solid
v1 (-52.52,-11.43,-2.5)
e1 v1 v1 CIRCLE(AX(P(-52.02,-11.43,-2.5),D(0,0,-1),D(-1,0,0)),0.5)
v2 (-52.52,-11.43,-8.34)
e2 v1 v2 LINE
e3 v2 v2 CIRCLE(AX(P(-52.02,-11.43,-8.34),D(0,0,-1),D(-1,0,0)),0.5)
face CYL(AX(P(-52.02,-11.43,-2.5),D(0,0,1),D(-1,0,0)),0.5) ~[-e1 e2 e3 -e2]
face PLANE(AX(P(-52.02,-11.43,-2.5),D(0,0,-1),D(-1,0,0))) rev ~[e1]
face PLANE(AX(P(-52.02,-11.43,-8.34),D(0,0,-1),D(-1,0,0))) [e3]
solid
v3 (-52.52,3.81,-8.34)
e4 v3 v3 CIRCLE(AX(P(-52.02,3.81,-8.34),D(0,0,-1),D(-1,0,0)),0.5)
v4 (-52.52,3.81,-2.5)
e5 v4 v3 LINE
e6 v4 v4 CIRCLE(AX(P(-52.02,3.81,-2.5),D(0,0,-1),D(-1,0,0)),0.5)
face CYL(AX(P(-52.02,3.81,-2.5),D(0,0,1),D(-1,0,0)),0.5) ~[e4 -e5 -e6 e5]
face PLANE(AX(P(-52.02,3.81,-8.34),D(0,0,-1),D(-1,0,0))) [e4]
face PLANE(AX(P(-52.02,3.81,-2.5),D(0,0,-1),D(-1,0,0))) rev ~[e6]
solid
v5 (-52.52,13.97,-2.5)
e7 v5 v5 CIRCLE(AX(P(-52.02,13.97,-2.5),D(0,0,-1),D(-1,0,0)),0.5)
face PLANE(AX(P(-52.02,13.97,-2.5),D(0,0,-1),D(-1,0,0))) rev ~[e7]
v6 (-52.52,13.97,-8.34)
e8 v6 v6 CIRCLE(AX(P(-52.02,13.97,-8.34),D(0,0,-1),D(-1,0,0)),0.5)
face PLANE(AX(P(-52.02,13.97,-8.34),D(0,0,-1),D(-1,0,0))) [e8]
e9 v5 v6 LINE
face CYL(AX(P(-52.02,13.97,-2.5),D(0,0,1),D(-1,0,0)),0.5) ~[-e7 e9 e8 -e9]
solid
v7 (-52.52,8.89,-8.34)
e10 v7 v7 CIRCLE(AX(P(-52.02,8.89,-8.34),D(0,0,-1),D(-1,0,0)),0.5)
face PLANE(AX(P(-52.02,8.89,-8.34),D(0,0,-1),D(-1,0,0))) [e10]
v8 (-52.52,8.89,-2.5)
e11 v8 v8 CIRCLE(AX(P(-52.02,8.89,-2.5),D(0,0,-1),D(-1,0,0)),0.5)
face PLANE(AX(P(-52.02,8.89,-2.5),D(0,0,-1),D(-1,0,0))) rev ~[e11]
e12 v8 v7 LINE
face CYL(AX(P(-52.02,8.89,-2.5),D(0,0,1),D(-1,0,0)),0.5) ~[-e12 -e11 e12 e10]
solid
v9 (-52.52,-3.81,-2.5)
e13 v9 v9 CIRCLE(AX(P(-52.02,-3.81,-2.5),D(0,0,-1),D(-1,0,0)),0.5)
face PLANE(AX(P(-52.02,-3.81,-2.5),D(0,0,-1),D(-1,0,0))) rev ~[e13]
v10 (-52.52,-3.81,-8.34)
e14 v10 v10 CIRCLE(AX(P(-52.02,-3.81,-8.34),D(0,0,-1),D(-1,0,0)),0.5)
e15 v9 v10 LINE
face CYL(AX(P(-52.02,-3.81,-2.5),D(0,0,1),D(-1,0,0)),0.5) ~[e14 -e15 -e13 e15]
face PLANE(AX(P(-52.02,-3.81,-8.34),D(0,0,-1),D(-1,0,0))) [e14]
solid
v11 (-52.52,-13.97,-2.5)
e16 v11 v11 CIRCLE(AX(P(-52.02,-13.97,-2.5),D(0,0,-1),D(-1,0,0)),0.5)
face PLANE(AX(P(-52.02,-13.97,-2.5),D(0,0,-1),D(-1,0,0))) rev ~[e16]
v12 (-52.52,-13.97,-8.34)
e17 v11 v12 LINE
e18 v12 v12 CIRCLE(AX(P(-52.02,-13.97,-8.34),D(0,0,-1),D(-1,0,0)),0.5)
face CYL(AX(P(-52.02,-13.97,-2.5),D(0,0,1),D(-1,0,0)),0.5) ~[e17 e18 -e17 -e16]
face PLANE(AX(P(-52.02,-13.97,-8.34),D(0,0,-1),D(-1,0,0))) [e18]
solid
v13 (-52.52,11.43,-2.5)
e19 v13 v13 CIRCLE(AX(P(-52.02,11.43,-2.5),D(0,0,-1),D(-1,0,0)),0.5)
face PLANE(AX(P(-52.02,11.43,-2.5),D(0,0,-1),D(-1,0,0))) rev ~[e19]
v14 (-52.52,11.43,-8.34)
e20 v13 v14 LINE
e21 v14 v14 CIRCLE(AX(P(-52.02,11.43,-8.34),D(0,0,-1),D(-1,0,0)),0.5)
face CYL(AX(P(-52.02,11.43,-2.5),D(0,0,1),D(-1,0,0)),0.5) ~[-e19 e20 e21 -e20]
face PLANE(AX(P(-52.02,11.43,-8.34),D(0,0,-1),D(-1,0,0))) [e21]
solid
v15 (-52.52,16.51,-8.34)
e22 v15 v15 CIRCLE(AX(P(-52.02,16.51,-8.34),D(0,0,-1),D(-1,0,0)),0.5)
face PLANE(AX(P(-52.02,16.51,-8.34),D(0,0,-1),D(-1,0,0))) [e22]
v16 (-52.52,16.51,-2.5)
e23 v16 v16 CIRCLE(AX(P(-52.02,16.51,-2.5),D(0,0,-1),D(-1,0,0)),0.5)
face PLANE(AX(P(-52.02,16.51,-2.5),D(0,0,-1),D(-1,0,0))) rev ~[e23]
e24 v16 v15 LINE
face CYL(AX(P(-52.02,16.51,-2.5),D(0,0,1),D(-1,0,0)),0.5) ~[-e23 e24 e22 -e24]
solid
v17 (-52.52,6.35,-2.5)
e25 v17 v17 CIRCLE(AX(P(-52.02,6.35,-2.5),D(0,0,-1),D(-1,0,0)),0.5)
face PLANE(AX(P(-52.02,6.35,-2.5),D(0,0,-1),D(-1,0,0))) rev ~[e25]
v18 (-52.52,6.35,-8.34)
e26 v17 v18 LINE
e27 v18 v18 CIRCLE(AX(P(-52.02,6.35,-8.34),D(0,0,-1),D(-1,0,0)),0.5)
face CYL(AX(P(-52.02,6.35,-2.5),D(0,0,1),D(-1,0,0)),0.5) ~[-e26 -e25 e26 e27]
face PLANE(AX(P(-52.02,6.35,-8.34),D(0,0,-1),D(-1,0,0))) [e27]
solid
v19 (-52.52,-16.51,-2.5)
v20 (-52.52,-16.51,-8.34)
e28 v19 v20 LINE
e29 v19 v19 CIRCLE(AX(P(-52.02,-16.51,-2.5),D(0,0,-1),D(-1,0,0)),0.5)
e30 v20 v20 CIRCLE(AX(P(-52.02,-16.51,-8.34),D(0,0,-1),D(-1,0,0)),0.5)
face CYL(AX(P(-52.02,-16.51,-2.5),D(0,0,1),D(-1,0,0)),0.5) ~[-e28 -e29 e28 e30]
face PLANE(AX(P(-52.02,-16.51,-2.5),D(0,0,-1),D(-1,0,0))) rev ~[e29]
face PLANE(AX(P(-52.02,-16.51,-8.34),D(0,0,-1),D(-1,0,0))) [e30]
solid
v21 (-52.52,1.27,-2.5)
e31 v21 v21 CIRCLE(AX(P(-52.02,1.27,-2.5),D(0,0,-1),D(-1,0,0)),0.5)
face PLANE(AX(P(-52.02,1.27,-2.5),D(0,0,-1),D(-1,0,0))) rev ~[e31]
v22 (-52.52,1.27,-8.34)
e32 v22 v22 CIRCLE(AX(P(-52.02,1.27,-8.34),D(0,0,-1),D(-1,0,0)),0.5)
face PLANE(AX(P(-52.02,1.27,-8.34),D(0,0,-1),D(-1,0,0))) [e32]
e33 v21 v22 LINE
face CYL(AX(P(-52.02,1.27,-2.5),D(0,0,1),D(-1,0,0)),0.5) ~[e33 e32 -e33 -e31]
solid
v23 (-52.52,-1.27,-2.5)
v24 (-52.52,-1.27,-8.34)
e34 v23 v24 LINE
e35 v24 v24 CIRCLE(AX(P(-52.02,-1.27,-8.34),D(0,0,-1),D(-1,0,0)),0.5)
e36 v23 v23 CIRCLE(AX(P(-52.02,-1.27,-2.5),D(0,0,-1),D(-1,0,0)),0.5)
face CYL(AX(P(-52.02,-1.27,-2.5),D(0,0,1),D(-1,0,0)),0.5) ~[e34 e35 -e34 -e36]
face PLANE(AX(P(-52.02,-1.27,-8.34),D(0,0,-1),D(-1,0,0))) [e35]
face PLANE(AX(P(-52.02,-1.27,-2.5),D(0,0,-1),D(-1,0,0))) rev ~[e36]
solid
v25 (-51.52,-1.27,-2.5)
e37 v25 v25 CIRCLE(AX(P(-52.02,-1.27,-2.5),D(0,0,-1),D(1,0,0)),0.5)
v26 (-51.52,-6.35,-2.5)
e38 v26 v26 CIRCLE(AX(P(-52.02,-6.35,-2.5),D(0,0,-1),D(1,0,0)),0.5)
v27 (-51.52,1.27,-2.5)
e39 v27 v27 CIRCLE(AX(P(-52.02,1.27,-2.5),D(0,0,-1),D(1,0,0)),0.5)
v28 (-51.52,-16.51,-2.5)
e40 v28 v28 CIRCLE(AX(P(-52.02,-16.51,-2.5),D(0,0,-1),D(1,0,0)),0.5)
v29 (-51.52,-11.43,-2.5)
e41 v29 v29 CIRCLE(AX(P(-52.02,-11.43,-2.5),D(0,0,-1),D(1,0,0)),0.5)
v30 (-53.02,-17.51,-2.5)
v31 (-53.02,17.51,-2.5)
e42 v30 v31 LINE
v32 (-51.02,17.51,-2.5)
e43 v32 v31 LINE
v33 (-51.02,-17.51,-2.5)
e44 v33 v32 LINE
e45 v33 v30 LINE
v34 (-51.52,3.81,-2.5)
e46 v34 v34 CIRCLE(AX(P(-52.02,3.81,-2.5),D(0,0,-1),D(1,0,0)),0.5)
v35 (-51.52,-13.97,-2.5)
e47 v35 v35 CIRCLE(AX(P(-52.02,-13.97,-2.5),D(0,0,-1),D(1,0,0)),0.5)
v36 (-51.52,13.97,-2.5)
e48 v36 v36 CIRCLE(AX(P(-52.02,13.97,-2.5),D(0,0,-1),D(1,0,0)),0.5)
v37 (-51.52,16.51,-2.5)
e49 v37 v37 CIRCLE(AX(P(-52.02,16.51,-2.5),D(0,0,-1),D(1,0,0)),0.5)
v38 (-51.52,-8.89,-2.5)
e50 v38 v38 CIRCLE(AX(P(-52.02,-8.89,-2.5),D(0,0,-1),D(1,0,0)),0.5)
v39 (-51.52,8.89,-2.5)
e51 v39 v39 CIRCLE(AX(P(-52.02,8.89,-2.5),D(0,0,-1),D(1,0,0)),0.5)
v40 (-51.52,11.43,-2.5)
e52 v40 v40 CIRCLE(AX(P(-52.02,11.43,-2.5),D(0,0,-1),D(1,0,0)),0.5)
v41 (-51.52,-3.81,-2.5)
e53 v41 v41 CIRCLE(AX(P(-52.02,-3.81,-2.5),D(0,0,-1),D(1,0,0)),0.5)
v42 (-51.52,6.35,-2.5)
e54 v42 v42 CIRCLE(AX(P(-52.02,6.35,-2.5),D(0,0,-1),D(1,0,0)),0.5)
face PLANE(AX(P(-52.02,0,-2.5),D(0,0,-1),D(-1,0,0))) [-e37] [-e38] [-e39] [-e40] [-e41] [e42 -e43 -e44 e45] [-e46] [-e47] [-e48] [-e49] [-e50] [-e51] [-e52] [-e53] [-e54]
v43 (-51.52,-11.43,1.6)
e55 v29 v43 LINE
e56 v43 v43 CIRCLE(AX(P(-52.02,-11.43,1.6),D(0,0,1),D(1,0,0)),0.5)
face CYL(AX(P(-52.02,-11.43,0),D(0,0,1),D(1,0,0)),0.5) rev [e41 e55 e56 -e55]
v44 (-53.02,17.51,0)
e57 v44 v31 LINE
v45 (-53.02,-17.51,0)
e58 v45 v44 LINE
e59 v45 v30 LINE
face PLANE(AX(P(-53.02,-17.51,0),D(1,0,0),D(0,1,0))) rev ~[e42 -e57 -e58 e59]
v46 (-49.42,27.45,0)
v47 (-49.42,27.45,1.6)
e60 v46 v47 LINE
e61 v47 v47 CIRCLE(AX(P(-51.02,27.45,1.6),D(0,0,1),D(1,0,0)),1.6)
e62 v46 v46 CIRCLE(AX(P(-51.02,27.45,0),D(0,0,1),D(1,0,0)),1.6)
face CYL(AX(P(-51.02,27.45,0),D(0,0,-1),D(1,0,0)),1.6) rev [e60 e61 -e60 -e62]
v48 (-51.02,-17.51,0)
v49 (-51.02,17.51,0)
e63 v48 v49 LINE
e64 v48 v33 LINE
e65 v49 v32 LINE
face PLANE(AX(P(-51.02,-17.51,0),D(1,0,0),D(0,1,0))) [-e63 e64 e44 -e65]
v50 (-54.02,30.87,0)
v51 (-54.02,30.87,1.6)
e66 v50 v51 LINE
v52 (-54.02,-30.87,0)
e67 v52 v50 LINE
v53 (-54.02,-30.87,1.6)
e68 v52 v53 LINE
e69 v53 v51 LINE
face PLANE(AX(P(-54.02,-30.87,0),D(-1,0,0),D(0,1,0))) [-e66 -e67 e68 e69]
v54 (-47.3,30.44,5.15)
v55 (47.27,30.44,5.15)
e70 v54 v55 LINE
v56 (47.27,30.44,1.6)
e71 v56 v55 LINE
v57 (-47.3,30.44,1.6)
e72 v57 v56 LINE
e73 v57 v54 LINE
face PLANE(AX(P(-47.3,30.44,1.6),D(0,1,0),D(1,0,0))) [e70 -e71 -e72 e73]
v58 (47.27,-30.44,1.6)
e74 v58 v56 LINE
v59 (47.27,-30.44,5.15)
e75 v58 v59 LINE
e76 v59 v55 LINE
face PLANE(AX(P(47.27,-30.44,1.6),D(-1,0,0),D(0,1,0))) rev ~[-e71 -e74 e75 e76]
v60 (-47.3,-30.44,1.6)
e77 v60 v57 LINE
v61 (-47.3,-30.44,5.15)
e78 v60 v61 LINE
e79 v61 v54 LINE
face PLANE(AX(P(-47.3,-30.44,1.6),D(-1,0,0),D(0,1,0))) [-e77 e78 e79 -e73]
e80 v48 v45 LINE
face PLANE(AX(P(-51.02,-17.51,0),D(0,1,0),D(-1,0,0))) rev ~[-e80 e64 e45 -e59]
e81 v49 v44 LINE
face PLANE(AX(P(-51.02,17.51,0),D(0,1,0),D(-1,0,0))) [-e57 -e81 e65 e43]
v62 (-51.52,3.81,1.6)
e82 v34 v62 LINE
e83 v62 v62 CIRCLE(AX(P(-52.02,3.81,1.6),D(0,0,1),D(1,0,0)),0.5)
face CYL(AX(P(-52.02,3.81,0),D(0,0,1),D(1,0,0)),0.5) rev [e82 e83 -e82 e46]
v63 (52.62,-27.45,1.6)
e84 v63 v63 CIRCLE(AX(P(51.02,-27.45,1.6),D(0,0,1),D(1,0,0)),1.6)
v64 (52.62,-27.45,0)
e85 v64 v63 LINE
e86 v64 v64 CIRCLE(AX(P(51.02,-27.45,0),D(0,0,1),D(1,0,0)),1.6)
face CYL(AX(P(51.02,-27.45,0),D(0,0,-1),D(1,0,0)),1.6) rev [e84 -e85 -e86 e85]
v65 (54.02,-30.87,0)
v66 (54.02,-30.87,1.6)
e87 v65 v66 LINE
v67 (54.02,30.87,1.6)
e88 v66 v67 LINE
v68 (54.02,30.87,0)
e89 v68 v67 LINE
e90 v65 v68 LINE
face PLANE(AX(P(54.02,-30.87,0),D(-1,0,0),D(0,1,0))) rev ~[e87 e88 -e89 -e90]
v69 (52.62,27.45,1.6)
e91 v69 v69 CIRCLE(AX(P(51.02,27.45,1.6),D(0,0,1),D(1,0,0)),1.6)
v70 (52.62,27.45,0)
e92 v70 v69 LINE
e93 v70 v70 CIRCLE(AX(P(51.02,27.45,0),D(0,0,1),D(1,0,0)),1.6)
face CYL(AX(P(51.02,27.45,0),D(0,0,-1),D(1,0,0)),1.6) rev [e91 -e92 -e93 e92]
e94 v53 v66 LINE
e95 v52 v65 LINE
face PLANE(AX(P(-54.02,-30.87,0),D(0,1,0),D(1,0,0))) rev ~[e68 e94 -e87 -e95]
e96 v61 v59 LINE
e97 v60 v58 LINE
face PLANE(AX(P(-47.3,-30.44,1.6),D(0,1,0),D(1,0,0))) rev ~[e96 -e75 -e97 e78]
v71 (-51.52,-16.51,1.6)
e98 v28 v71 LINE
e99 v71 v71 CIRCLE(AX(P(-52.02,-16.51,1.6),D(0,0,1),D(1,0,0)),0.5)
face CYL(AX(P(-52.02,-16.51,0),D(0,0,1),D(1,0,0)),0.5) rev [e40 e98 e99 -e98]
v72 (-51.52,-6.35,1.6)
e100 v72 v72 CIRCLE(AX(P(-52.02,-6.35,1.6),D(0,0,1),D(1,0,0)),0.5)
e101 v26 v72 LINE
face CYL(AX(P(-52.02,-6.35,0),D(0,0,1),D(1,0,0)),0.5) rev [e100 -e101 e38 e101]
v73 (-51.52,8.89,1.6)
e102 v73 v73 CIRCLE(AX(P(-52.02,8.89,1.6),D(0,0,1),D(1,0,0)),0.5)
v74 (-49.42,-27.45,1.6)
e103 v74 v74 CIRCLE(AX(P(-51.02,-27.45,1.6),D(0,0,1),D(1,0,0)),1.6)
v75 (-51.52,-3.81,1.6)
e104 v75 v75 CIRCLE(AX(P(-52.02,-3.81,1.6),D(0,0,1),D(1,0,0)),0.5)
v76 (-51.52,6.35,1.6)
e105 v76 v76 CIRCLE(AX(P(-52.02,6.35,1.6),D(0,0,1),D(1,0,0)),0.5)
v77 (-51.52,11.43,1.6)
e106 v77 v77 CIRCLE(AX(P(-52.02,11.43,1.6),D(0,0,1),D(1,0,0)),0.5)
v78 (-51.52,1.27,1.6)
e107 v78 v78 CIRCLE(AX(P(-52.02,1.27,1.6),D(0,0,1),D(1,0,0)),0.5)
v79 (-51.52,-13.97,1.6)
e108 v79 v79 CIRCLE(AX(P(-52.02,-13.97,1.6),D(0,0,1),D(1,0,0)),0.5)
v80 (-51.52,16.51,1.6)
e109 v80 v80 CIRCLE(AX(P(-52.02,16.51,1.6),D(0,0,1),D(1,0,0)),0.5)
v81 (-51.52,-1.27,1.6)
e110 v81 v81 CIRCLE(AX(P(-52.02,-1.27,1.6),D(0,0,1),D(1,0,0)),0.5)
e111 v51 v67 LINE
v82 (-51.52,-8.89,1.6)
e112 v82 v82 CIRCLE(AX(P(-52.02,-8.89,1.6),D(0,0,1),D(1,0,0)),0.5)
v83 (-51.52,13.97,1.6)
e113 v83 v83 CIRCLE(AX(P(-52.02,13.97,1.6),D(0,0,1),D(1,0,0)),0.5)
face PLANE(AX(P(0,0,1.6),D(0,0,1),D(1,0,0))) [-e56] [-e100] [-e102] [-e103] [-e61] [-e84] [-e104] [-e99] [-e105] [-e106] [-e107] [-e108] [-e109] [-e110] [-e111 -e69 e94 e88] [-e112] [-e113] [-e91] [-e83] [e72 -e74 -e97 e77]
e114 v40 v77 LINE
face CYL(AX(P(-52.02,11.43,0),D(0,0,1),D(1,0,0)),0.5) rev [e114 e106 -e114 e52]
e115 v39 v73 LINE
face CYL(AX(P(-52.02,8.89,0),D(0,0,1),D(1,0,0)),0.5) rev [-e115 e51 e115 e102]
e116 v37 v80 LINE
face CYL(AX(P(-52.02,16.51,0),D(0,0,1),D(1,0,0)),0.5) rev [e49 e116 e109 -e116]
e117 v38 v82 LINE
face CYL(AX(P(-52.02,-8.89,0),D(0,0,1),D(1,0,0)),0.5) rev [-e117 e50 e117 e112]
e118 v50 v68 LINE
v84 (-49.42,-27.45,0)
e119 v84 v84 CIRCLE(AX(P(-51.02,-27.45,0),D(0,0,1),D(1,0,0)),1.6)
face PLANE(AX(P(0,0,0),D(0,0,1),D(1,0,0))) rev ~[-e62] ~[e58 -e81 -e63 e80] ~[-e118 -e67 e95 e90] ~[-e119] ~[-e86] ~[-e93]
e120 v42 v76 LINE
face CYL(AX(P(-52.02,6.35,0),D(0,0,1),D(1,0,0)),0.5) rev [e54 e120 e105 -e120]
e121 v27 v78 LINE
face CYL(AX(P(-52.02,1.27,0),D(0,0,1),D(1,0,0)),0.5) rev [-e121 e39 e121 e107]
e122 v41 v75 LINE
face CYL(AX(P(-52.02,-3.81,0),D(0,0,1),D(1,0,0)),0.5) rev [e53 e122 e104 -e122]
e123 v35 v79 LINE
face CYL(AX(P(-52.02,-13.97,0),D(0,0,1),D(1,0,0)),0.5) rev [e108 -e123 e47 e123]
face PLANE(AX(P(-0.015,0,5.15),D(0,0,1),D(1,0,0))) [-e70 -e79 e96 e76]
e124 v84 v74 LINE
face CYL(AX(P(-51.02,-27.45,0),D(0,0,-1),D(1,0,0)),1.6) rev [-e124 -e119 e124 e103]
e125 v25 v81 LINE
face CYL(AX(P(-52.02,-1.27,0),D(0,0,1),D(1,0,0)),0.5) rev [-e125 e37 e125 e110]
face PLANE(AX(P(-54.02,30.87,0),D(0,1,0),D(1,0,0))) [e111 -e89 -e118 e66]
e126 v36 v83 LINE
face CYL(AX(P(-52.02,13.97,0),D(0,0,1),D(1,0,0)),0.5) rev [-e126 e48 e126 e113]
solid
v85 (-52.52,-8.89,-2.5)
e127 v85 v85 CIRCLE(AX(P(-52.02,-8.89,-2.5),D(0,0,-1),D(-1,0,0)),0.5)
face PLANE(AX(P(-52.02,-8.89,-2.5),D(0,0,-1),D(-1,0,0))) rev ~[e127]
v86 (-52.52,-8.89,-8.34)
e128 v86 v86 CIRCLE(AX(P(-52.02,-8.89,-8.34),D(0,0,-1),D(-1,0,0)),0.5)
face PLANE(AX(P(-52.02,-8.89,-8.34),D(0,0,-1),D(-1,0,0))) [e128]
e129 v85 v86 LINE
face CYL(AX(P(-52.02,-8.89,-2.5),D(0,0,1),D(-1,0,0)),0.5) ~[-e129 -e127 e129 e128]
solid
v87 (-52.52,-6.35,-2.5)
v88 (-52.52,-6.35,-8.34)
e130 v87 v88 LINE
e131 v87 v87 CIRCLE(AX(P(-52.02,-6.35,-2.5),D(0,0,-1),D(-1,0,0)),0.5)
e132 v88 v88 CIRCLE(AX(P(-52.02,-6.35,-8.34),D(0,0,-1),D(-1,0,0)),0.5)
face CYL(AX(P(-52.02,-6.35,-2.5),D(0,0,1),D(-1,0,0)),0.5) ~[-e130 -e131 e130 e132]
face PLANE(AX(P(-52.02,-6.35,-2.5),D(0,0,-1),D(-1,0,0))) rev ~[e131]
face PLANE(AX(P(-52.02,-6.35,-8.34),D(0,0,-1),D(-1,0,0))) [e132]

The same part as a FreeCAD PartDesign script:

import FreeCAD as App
import Part
import Sketcher
from FreeCAD import Vector
Q = App.Units.Quantity

doc = App.newDocument("Part")
body = doc.addObject("PartDesign::Body", "Body")

sketch1 = doc.addObject("Sketcher::SketchObject", "Sketch")
body.addObject(sketch1)
sketch1.AttachmentSupport = (doc.XY_Plane, [""])
sketch1.MapMode = "FlatFace"
sketch1.addGeometry([
    Part.LineSegment(Vector(-54.02, 30.87, 0), Vector(-54.02, -30.87, 0)),
    Part.LineSegment(Vector(-54.02, -30.87, 0), Vector(54.02, -30.87, 0)),
    Part.LineSegment(Vector(54.02, -30.87, 0), Vector(54.02, 30.87, 0)),
    Part.LineSegment(Vector(54.02, 30.87, 0), Vector(-54.02, 30.87, 0)),
    Part.Circle(Vector(-51.02, -27.45, 0), Vector(0, 0, 1), 1.6),
    Part.Circle(Vector(51.02, -27.45, 0), Vector(0, 0, 1), 1.6),
    Part.Circle(Vector(-51.02, 27.45, 0), Vector(0, 0, 1), 1.6),
    Part.Circle(Vector(51.02, 27.45, 0), Vector(0, 0, 1), 1.6),
], False)
sketch1.addConstraint([
    Sketcher.Constraint("Coincident", 0, 2, 1, 1),
    Sketcher.Constraint("Coincident", 1, 2, 2, 1),
    Sketcher.Constraint("Coincident", 2, 2, 3, 1),
    Sketcher.Constraint("Coincident", 3, 2, 0, 1),
    Sketcher.Constraint("Vertical", 0),
    Sketcher.Constraint("Horizontal", 1),
    Sketcher.Constraint("Vertical", 2),
    Sketcher.Constraint("Horizontal", 3),
    Sketcher.Constraint("Equal", 4, 5),
    Sketcher.Constraint("Equal", 5, 6),
    Sketcher.Constraint("Equal", 6, 7),
    Sketcher.Constraint("Symmetric", 5, 3, 6, 3, -1, 1),
    Sketcher.Constraint("Symmetric", 4, 3, 7, 3, -1, 1),
    Sketcher.Constraint("Symmetric", 0, 2, 2, 2, -1, 1),
    Sketcher.Constraint("Symmetric", 4, 3, 5, 3, -2),
    Sketcher.Constraint("Diameter", 4, Q("3.2 mm")),
    Sketcher.Constraint("DistanceX", 0, 2, 4, 3, Q("3 mm")),
    Sketcher.Constraint("DistanceX", 1, 1, 1, 2, Q("108.04 mm")),
    Sketcher.Constraint("DistanceY", 0, 2, 0, 1, Q("61.74 mm")),
    Sketcher.Constraint("DistanceY", 4, 3, 6, 3, Q("54.9 mm")),
])
pad1 = doc.addObject("PartDesign::Pad", "Pad")
body.addObject(pad1)
pad1.Profile = sketch1
pad1.Length = 1.6

sketch2 = doc.addObject("Sketcher::SketchObject", "Sketch001")
body.addObject(sketch2)
sketch2.AttachmentSupport = (doc.XY_Plane, [""])
sketch2.MapMode = "FlatFace"
sketch2.AttachmentOffset = App.Placement(Vector(0, 0, 1.6), App.Rotation())
sketch2.addGeometry([
    Part.LineSegment(Vector(-47.3, 30.44, 0), Vector(-47.3, -30.44, 0)),
    Part.LineSegment(Vector(-47.3, -30.44, 0), Vector(47.27, -30.44, 0)),
    Part.LineSegment(Vector(47.27, -30.44, 0), Vector(47.27, 30.44, 0)),
    Part.LineSegment(Vector(47.27, 30.44, 0), Vector(-47.3, 30.44, 0)),
], False)
sketch2.addConstraint([
    Sketcher.Constraint("Coincident", 0, 2, 1, 1),
    Sketcher.Constraint("Coincident", 1, 2, 2, 1),
    Sketcher.Constraint("Coincident", 2, 2, 3, 1),
    Sketcher.Constraint("Coincident", 3, 2, 0, 1),
    Sketcher.Constraint("Vertical", 0),
    Sketcher.Constraint("Horizontal", 1),
    Sketcher.Constraint("Vertical", 2),
    Sketcher.Constraint("Horizontal", 3),
    Sketcher.Constraint("DistanceX", 1, 1, 1, 2, Q("94.57 mm")),
    Sketcher.Constraint("DistanceY", 0, 2, 0, 1, Q("60.88 mm")),
    Sketcher.Constraint("DistanceX", 0, 2, -1, 1, Q("47.3 mm")),
    Sketcher.Constraint("DistanceY", 0, 2, -1, 1, Q("30.44 mm")),
])
pad2 = doc.addObject("PartDesign::Pad", "Pad001")
body.addObject(pad2)
pad2.Profile = sketch2
pad2.Length = 3.55

sketch3 = doc.addObject("Sketcher::SketchObject", "Sketch002")
body.addObject(sketch3)
sketch3.AttachmentSupport = (doc.XY_Plane, [""])
sketch3.MapMode = "FlatFace"
sketch3.AttachmentOffset = App.Placement(Vector(0, 0, 1.6), App.Rotation())
sketch3.addGeometry([
    Part.Circle(Vector(-52.02, 16.51, 0), Vector(0, 0, 1), 0.5),
    Part.Circle(Vector(-52.02, 13.97, 0), Vector(0, 0, 1), 0.5),
    Part.Circle(Vector(-52.02, 11.43, 0), Vector(0, 0, 1), 0.5),
    Part.Circle(Vector(-52.02, 8.89, 0), Vector(0, 0, 1), 0.5),
    Part.Circle(Vector(-52.02, 6.35, 0), Vector(0, 0, 1), 0.5),
    Part.Circle(Vector(-52.02, 3.81, 0), Vector(0, 0, 1), 0.5),
    Part.Circle(Vector(-52.02, 1.27, 0), Vector(0, 0, 1), 0.5),
    Part.Circle(Vector(-52.02, -1.27, 0), Vector(0, 0, 1), 0.5),
    Part.Circle(Vector(-52.02, -3.81, 0), Vector(0, 0, 1), 0.5),
    Part.Circle(Vector(-52.02, -6.35, 0), Vector(0, 0, 1), 0.5),
    Part.Circle(Vector(-52.02, -8.89, 0), Vector(0, 0, 1), 0.5),
    Part.Circle(Vector(-52.02, -11.43, 0), Vector(0, 0, 1), 0.5),
    Part.Circle(Vector(-52.02, -13.97, 0), Vector(0, 0, 1), 0.5),
    Part.Circle(Vector(-52.02, -16.51, 0), Vector(0, 0, 1), 0.5),
], False)
sketch3.addConstraint([
    Sketcher.Constraint("Equal", 0, 1),
    Sketcher.Constraint("Equal", 1, 2),
    Sketcher.Constraint("Equal", 2, 3),
    Sketcher.Constraint("Equal", 3, 4),
    Sketcher.Constraint("Equal", 4, 5),
    Sketcher.Constraint("Equal", 5, 6),
    Sketcher.Constraint("Equal", 6, 7),
    Sketcher.Constraint("Equal", 7, 8),
    Sketcher.Constraint("Equal", 8, 9),
    Sketcher.Constraint("Equal", 9, 10),
    Sketcher.Constraint("Equal", 10, 11),
    Sketcher.Constraint("Equal", 11, 12),
    Sketcher.Constraint("Equal", 12, 13),
    Sketcher.Constraint("Symmetric", 6, 3, 7, 3, -1),
    Sketcher.Constraint("Symmetric", 5, 3, 8, 3, -1),
    Sketcher.Constraint("Symmetric", 4, 3, 9, 3, -1),
    Sketcher.Constraint("Symmetric", 3, 3, 10, 3, -1),
    Sketcher.Constraint("Symmetric", 2, 3, 11, 3, -1),
    Sketcher.Constraint("Symmetric", 1, 3, 12, 3, -1),
    Sketcher.Constraint("Symmetric", 0, 3, 13, 3, -1),
    Sketcher.Constraint("Vertical", 0, 3, 1, 3),
    Sketcher.Constraint("Vertical", 1, 3, 2, 3),
    Sketcher.Constraint("Vertical", 2, 3, 3, 3),
    Sketcher.Constraint("Vertical", 3, 3, 4, 3),
    Sketcher.Constraint("Vertical", 4, 3, 5, 3),
    Sketcher.Constraint("Vertical", 5, 3, 6, 3),
    Sketcher.Constraint("Diameter", 0, Q("1 mm")),
    Sketcher.Constraint("DistanceY", 5, 3, 0, 3, Q("12.7 mm")),
    Sketcher.Constraint("DistanceY", 6, 3, 1, 3, Q("12.7 mm")),
    Sketcher.Constraint("DistanceY", 7, 3, 2, 3, Q("12.7 mm")),
    Sketcher.Constraint("DistanceY", 8, 3, 3, 3, Q("12.7 mm")),
    Sketcher.Constraint("DistanceY", 9, 3, 4, 3, Q("12.7 mm")),
    Sketcher.Constraint("DistanceX", 0, 3, -1, 1, Q("52.02 mm")),
    Sketcher.Constraint("DistanceY", -1, 1, 0, 3, Q("16.51 mm")),
    Sketcher.Constraint("DistanceY", -1, 1, 1, 3, Q("13.97 mm")),
])
pocket1 = doc.addObject("PartDesign::Pocket", "Pocket")
body.addObject(pocket1)
pocket1.Profile = sketch3
pocket1.Length = 3.55

sketch4 = doc.addObject("Sketcher::SketchObject", "Sketch003")
body.addObject(sketch4)
sketch4.AttachmentSupport = (doc.XY_Plane, [""])
sketch4.MapMode = "FlatFace"
sketch4.addGeometry([
    Part.LineSegment(Vector(-51.02, 17.51, 0), Vector(-51.02, -17.51, 0)),
    Part.LineSegment(Vector(-51.02, -17.51, 0), Vector(-53.02, -17.51, 0)),
    Part.LineSegment(Vector(-53.02, -17.51, 0), Vector(-53.02, 17.51, 0)),
    Part.LineSegment(Vector(-53.02, 17.51, 0), Vector(-51.02, 17.51, 0)),
    Part.Circle(Vector(-52.02, -16.51, 0), Vector(0, 0, 1), 0.5),
    Part.Circle(Vector(-52.02, -13.97, 0), Vector(0, 0, 1), 0.5),
    Part.Circle(Vector(-52.02, -11.43, 0), Vector(0, 0, 1), 0.5),
    Part.Circle(Vector(-52.02, -8.89, 0), Vector(0, 0, 1), 0.5),
    Part.Circle(Vector(-52.02, -6.35, 0), Vector(0, 0, 1), 0.5),
    Part.Circle(Vector(-52.02, -3.81, 0), Vector(0, 0, 1), 0.5),
    Part.Circle(Vector(-52.02, -1.27, 0), Vector(0, 0, 1), 0.5),
    Part.Circle(Vector(-52.02, 1.27, 0), Vector(0, 0, 1), 0.5),
    Part.Circle(Vector(-52.02, 3.81, 0), Vector(0, 0, 1), 0.5),
    Part.Circle(Vector(-52.02, 6.35, 0), Vector(0, 0, 1), 0.5),
    Part.Circle(Vector(-52.02, 8.89, 0), Vector(0, 0, 1), 0.5),
    Part.Circle(Vector(-52.02, 11.43, 0), Vector(0, 0, 1), 0.5),
    Part.Circle(Vector(-52.02, 13.97, 0), Vector(0, 0, 1), 0.5),
    Part.Circle(Vector(-52.02, 16.51, 0), Vector(0, 0, 1), 0.5),
], False)
sketch4.addConstraint([
    Sketcher.Constraint("Coincident", 0, 2, 1, 1),
    Sketcher.Constraint("Coincident", 1, 2, 2, 1),
    Sketcher.Constraint("Coincident", 2, 2, 3, 1),
    Sketcher.Constraint("Coincident", 3, 2, 0, 1),
    Sketcher.Constraint("Vertical", 0),
    Sketcher.Constraint("Horizontal", 1),
    Sketcher.Constraint("Vertical", 2),
    Sketcher.Constraint("Horizontal", 3),
    Sketcher.Constraint("Equal", 4, 5),
    Sketcher.Constraint("Equal", 5, 6),
    Sketcher.Constraint("Equal", 6, 7),
    Sketcher.Constraint("Equal", 7, 8),
    Sketcher.Constraint("Equal", 8, 9),
    Sketcher.Constraint("Equal", 9, 10),
    Sketcher.Constraint("Equal", 10, 11),
    Sketcher.Constraint("Equal", 11, 12),
    Sketcher.Constraint("Equal", 12, 13),
    Sketcher.Constraint("Equal", 13, 14),
    Sketcher.Constraint("Equal", 14, 15),
    Sketcher.Constraint("Equal", 15, 16),
    Sketcher.Constraint("Equal", 16, 17),
    Sketcher.Constraint("Symmetric", 10, 3, 11, 3, -1),
    Sketcher.Constraint("Symmetric", 9, 3, 12, 3, -1),
    Sketcher.Constraint("Symmetric", 8, 3, 13, 3, -1),
    Sketcher.Constraint("Symmetric", 7, 3, 14, 3, -1),
    Sketcher.Constraint("Symmetric", 6, 3, 15, 3, -1),
    Sketcher.Constraint("Symmetric", 5, 3, 16, 3, -1),
    Sketcher.Constraint("Symmetric", 4, 3, 17, 3, -1),
    Sketcher.Constraint("Vertical", 4, 3, 5, 3),
    Sketcher.Constraint("Vertical", 5, 3, 6, 3),
    Sketcher.Constraint("Vertical", 6, 3, 7, 3),
    Sketcher.Constraint("Vertical", 7, 3, 8, 3),
    Sketcher.Constraint("Vertical", 8, 3, 9, 3),
    Sketcher.Constraint("Vertical", 9, 3, 10, 3),
    Sketcher.Constraint("Diameter", 4, Q("1 mm")),
    Sketcher.Constraint("DistanceX", 1, 2, 1, 1, Q("2 mm")),
    Sketcher.Constraint("DistanceX", 4, 3, 0, 2, Q("1 mm")),
    Sketcher.Constraint("DistanceY", 0, 2, 4, 3, Q("1 mm")),
    Sketcher.Constraint("DistanceY", 17, 3, 2, 2, Q("1 mm")),
    Sketcher.Constraint("DistanceY", 0, 2, 0, 1, Q("35.02 mm")),
    Sketcher.Constraint("DistanceY", 4, 3, 9, 3, Q("12.7 mm")),
    Sketcher.Constraint("DistanceY", 5, 3, 10, 3, Q("12.7 mm")),
    Sketcher.Constraint("DistanceY", 6, 3, 11, 3, Q("12.7 mm")),
    Sketcher.Constraint("DistanceY", 7, 3, 12, 3, Q("12.7 mm")),
    Sketcher.Constraint("DistanceY", 8, 3, 13, 3, Q("12.7 mm")),
    Sketcher.Constraint("DistanceX", 4, 3, -1, 1, Q("52.02 mm")),
    Sketcher.Constraint("DistanceY", 5, 3, -1, 1, Q("13.97 mm")),
])
pad3 = doc.addObject("PartDesign::Pad", "Pad002")
body.addObject(pad3)
pad3.Profile = sketch4
pad3.Length = 2.5
pad3.Reversed = True
body2 = doc.addObject("PartDesign::Body", "Body001")

sketch5 = doc.addObject("Sketcher::SketchObject", "Sketch004")
body2.addObject(sketch5)
sketch5.AttachmentSupport = (doc.getObject("XY_Plane001"), [""])
sketch5.MapMode = "FlatFace"
sketch5.AttachmentOffset = App.Placement(Vector(0, 0, -2.5), App.Rotation())
sketch5.addGeometry(Part.Circle(Vector(-52.02, -16.51, 0), Vector(0, 0, 1), 0.5), False)
sketch5.addConstraint([
    Sketcher.Constraint("Diameter", 0, Q("1 mm")),
    Sketcher.Constraint("DistanceX", 0, 3, -1, 1, Q("52.02 mm")),
    Sketcher.Constraint("DistanceY", 0, 3, -1, 1, Q("16.51 mm")),
])
pad4 = doc.addObject("PartDesign::Pad", "Pad003")
body2.addObject(pad4)
pad4.Profile = sketch5
pad4.Length = 5.84
pad4.Reversed = True
body3 = doc.addObject("PartDesign::Body", "Body002")

sketch6 = doc.addObject("Sketcher::SketchObject", "Sketch005")
body3.addObject(sketch6)
sketch6.AttachmentSupport = (doc.getObject("XY_Plane002"), [""])
sketch6.MapMode = "FlatFace"
sketch6.AttachmentOffset = App.Placement(Vector(0, 0, -2.5), App.Rotation())
sketch6.addGeometry(Part.Circle(Vector(-52.02, -13.97, 0), Vector(0, 0, 1), 0.5), False)
sketch6.addConstraint([
    Sketcher.Constraint("Diameter", 0, Q("1 mm")),
    Sketcher.Constraint("DistanceX", 0, 3, -1, 1, Q("52.02 mm")),
    Sketcher.Constraint("DistanceY", 0, 3, -1, 1, Q("13.97 mm")),
])
pad5 = doc.addObject("PartDesign::Pad", "Pad004")
body3.addObject(pad5)
pad5.Profile = sketch6
pad5.Length = 5.84
pad5.Reversed = True
body4 = doc.addObject("PartDesign::Body", "Body003")

sketch7 = doc.addObject("Sketcher::SketchObject", "Sketch006")
body4.addObject(sketch7)
sketch7.AttachmentSupport = (doc.getObject("XY_Plane003"), [""])
sketch7.MapMode = "FlatFace"
sketch7.AttachmentOffset = App.Placement(Vector(0, 0, -2.5), App.Rotation())
sketch7.addGeometry(Part.Circle(Vector(-52.02, -11.43, 0), Vector(0, 0, 1), 0.5), False)
sketch7.addConstraint([
    Sketcher.Constraint("Diameter", 0, Q("1 mm")),
    Sketcher.Constraint("DistanceX", 0, 3, -1, 1, Q("52.02 mm")),
    Sketcher.Constraint("DistanceY", 0, 3, -1, 1, Q("11.43 mm")),
])
pad6 = doc.addObject("PartDesign::Pad", "Pad005")
body4.addObject(pad6)
pad6.Profile = sketch7
pad6.Length = 5.84
pad6.Reversed = True
body5 = doc.addObject("PartDesign::Body", "Body004")

sketch8 = doc.addObject("Sketcher::SketchObject", "Sketch007")
body5.addObject(sketch8)
sketch8.AttachmentSupport = (doc.getObject("XY_Plane004"), [""])
sketch8.MapMode = "FlatFace"
sketch8.AttachmentOffset = App.Placement(Vector(0, 0, -2.5), App.Rotation())
sketch8.addGeometry(Part.Circle(Vector(-52.02, -8.89, 0), Vector(0, 0, 1), 0.5), False)
sketch8.addConstraint([
    Sketcher.Constraint("Diameter", 0, Q("1 mm")),
    Sketcher.Constraint("DistanceX", 0, 3, -1, 1, Q("52.02 mm")),
    Sketcher.Constraint("DistanceY", 0, 3, -1, 1, Q("8.89 mm")),
])
pad7 = doc.addObject("PartDesign::Pad", "Pad006")
body5.addObject(pad7)
pad7.Profile = sketch8
pad7.Length = 5.84
pad7.Reversed = True
body6 = doc.addObject("PartDesign::Body", "Body005")

sketch9 = doc.addObject("Sketcher::SketchObject", "Sketch008")
body6.addObject(sketch9)
sketch9.AttachmentSupport = (doc.getObject("XY_Plane005"), [""])
sketch9.MapMode = "FlatFace"
sketch9.AttachmentOffset = App.Placement(Vector(0, 0, -2.5), App.Rotation())
sketch9.addGeometry(Part.Circle(Vector(-52.02, -6.35, 0), Vector(0, 0, 1), 0.5), False)
sketch9.addConstraint([
    Sketcher.Constraint("Diameter", 0, Q("1 mm")),
    Sketcher.Constraint("DistanceX", 0, 3, -1, 1, Q("52.02 mm")),
    Sketcher.Constraint("DistanceY", 0, 3, -1, 1, Q("6.35 mm")),
])
pad8 = doc.addObject("PartDesign::Pad", "Pad007")
body6.addObject(pad8)
pad8.Profile = sketch9
pad8.Length = 5.84
pad8.Reversed = True
body7 = doc.addObject("PartDesign::Body", "Body006")

sketch10 = doc.addObject("Sketcher::SketchObject", "Sketch009")
body7.addObject(sketch10)
sketch10.AttachmentSupport = (doc.getObject("XY_Plane006"), [""])
sketch10.MapMode = "FlatFace"
sketch10.AttachmentOffset = App.Placement(Vector(0, 0, -2.5), App.Rotation())
sketch10.addGeometry(Part.Circle(Vector(-52.02, -3.81, 0), Vector(0, 0, 1), 0.5), False)
sketch10.addConstraint([
    Sketcher.Constraint("Diameter", 0, Q("1 mm")),
    Sketcher.Constraint("DistanceX", 0, 3, -1, 1, Q("52.02 mm")),
    Sketcher.Constraint("DistanceY", 0, 3, -1, 1, Q("3.81 mm")),
])
pad9 = doc.addObject("PartDesign::Pad", "Pad008")
body7.addObject(pad9)
pad9.Profile = sketch10
pad9.Length = 5.84
pad9.Reversed = True
body8 = doc.addObject("PartDesign::Body", "Body007")

sketch11 = doc.addObject("Sketcher::SketchObject", "Sketch010")
body8.addObject(sketch11)
sketch11.AttachmentSupport = (doc.getObject("XY_Plane007"), [""])
sketch11.MapMode = "FlatFace"
sketch11.AttachmentOffset = App.Placement(Vector(0, 0, -2.5), App.Rotation())
sketch11.addGeometry(Part.Circle(Vector(-52.02, -1.27, 0), Vector(0, 0, 1), 0.5), False)
sketch11.addConstraint([
    Sketcher.Constraint("Diameter", 0, Q("1 mm")),
    Sketcher.Constraint("DistanceX", 0, 3, -1, 1, Q("52.02 mm")),
    Sketcher.Constraint("DistanceY", 0, 3, -1, 1, Q("1.27 mm")),
])
pad10 = doc.addObject("PartDesign::Pad", "Pad009")
body8.addObject(pad10)
pad10.Profile = sketch11
pad10.Length = 5.84
pad10.Reversed = True
body9 = doc.addObject("PartDesign::Body", "Body008")

sketch12 = doc.addObject("Sketcher::SketchObject", "Sketch011")
body9.addObject(sketch12)
sketch12.AttachmentSupport = (doc.getObject("XY_Plane008"), [""])
sketch12.MapMode = "FlatFace"
sketch12.AttachmentOffset = App.Placement(Vector(0, 0, -2.5), App.Rotation())
sketch12.addGeometry(Part.Circle(Vector(-52.02, 1.27, 0), Vector(0, 0, 1), 0.5), False)
sketch12.addConstraint([
    Sketcher.Constraint("Diameter", 0, Q("1 mm")),
    Sketcher.Constraint("DistanceX", 0, 3, -1, 1, Q("52.02 mm")),
    Sketcher.Constraint("DistanceY", -1, 1, 0, 3, Q("1.27 mm")),
])
pad11 = doc.addObject("PartDesign::Pad", "Pad010")
body9.addObject(pad11)
pad11.Profile = sketch12
pad11.Length = 5.84
pad11.Reversed = True
body10 = doc.addObject("PartDesign::Body", "Body009")

sketch13 = doc.addObject("Sketcher::SketchObject", "Sketch012")
body10.addObject(sketch13)
sketch13.AttachmentSupport = (doc.getObject("XY_Plane009"), [""])
sketch13.MapMode = "FlatFace"
sketch13.AttachmentOffset = App.Placement(Vector(0, 0, -2.5), App.Rotation())
sketch13.addGeometry(Part.Circle(Vector(-52.02, 3.81, 0), Vector(0, 0, 1), 0.5), False)
sketch13.addConstraint([
    Sketcher.Constraint("Diameter", 0, Q("1 mm")),
    Sketcher.Constraint("DistanceX", 0, 3, -1, 1, Q("52.02 mm")),
    Sketcher.Constraint("DistanceY", -1, 1, 0, 3, Q("3.81 mm")),
])
pad12 = doc.addObject("PartDesign::Pad", "Pad011")
body10.addObject(pad12)
pad12.Profile = sketch13
pad12.Length = 5.84
pad12.Reversed = True
body11 = doc.addObject("PartDesign::Body", "Body010")

sketch14 = doc.addObject("Sketcher::SketchObject", "Sketch013")
body11.addObject(sketch14)
sketch14.AttachmentSupport = (doc.getObject("XY_Plane010"), [""])
sketch14.MapMode = "FlatFace"
sketch14.AttachmentOffset = App.Placement(Vector(0, 0, -2.5), App.Rotation())
sketch14.addGeometry(Part.Circle(Vector(-52.02, 6.35, 0), Vector(0, 0, 1), 0.5), False)
sketch14.addConstraint([
    Sketcher.Constraint("Diameter", 0, Q("1 mm")),
    Sketcher.Constraint("DistanceX", 0, 3, -1, 1, Q("52.02 mm")),
    Sketcher.Constraint("DistanceY", -1, 1, 0, 3, Q("6.35 mm")),
])
pad13 = doc.addObject("PartDesign::Pad", "Pad012")
body11.addObject(pad13)
pad13.Profile = sketch14
pad13.Length = 5.84
pad13.Reversed = True
body12 = doc.addObject("PartDesign::Body", "Body011")

sketch15 = doc.addObject("Sketcher::SketchObject", "Sketch014")
body12.addObject(sketch15)
sketch15.AttachmentSupport = (doc.getObject("XY_Plane011"), [""])
sketch15.MapMode = "FlatFace"
sketch15.AttachmentOffset = App.Placement(Vector(0, 0, -2.5), App.Rotation())
sketch15.addGeometry(Part.Circle(Vector(-52.02, 8.89, 0), Vector(0, 0, 1), 0.5), False)
sketch15.addConstraint([
    Sketcher.Constraint("Diameter", 0, Q("1 mm")),
    Sketcher.Constraint("DistanceX", 0, 3, -1, 1, Q("52.02 mm")),
    Sketcher.Constraint("DistanceY", -1, 1, 0, 3, Q("8.89 mm")),
])
pad14 = doc.addObject("PartDesign::Pad", "Pad013")
body12.addObject(pad14)
pad14.Profile = sketch15
pad14.Length = 5.84
pad14.Reversed = True
body13 = doc.addObject("PartDesign::Body", "Body012")

sketch16 = doc.addObject("Sketcher::SketchObject", "Sketch015")
body13.addObject(sketch16)
sketch16.AttachmentSupport = (doc.getObject("XY_Plane012"), [""])
sketch16.MapMode = "FlatFace"
sketch16.AttachmentOffset = App.Placement(Vector(0, 0, -2.5), App.Rotation())
sketch16.addGeometry(Part.Circle(Vector(-52.02, 11.43, 0), Vector(0, 0, 1), 0.5), False)
sketch16.addConstraint([
    Sketcher.Constraint("Diameter", 0, Q("1 mm")),
    Sketcher.Constraint("DistanceX", 0, 3, -1, 1, Q("52.02 mm")),
    Sketcher.Constraint("DistanceY", -1, 1, 0, 3, Q("11.43 mm")),
])
pad15 = doc.addObject("PartDesign::Pad", "Pad014")
body13.addObject(pad15)
pad15.Profile = sketch16
pad15.Length = 5.84
pad15.Reversed = True
body14 = doc.addObject("PartDesign::Body", "Body013")

sketch17 = doc.addObject("Sketcher::SketchObject", "Sketch016")
body14.addObject(sketch17)
sketch17.AttachmentSupport = (doc.getObject("XY_Plane013"), [""])
sketch17.MapMode = "FlatFace"
sketch17.AttachmentOffset = App.Placement(Vector(0, 0, -2.5), App.Rotation())
sketch17.addGeometry(Part.Circle(Vector(-52.02, 13.97, 0), Vector(0, 0, 1), 0.5), False)
sketch17.addConstraint([
    Sketcher.Constraint("Diameter", 0, Q("1 mm")),
    Sketcher.Constraint("DistanceX", 0, 3, -1, 1, Q("52.02 mm")),
    Sketcher.Constraint("DistanceY", -1, 1, 0, 3, Q("13.97 mm")),
])
pad16 = doc.addObject("PartDesign::Pad", "Pad015")
body14.addObject(pad16)
pad16.Profile = sketch17
pad16.Length = 5.84
pad16.Reversed = True
body15 = doc.addObject("PartDesign::Body", "Body014")

sketch18 = doc.addObject("Sketcher::SketchObject", "Sketch017")
body15.addObject(sketch18)
sketch18.AttachmentSupport = (doc.getObject("XY_Plane014"), [""])
sketch18.MapMode = "FlatFace"
sketch18.AttachmentOffset = App.Placement(Vector(0, 0, -2.5), App.Rotation())
sketch18.addGeometry(Part.Circle(Vector(-52.02, 16.51, 0), Vector(0, 0, 1), 0.5), False)
sketch18.addConstraint([
    Sketcher.Constraint("Diameter", 0, Q("1 mm")),
    Sketcher.Constraint("DistanceX", 0, 3, -1, 1, Q("52.02 mm")),
    Sketcher.Constraint("DistanceY", -1, 1, 0, 3, Q("16.51 mm")),
])
pad17 = doc.addObject("PartDesign::Pad", "Pad016")
body15.addObject(pad17)
pad17.Profile = sketch18
pad17.Length = 5.84
pad17.Reversed = True

doc.recompute()
